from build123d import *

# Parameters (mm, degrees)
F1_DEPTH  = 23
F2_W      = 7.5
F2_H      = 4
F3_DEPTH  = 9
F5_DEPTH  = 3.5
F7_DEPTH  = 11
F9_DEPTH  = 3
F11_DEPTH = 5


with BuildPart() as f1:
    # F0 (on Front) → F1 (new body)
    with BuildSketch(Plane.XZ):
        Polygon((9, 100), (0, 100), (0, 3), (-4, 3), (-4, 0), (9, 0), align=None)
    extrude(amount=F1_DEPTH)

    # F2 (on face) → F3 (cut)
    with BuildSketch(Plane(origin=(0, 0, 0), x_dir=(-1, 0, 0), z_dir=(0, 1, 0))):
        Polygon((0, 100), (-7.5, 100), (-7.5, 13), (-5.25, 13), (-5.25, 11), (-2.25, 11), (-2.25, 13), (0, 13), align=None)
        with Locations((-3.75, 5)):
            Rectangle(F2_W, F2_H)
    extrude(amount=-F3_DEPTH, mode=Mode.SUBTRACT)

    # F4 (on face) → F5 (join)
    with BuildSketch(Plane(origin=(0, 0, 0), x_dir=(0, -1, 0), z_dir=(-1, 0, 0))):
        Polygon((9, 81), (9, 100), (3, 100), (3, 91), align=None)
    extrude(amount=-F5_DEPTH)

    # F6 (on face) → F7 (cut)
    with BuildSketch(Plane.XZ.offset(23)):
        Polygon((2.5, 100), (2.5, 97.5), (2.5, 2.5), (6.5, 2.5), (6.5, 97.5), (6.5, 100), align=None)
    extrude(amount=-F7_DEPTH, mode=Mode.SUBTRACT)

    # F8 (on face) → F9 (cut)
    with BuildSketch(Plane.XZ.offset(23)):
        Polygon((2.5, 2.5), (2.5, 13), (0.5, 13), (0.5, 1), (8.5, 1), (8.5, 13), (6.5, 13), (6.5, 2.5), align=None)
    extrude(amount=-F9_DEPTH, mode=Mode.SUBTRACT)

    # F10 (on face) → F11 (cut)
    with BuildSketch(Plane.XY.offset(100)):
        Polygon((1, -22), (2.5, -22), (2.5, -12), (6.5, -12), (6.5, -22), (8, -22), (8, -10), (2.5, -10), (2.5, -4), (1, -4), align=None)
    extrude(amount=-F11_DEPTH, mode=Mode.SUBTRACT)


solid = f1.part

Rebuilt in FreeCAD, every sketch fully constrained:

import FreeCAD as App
import Part
import Sketcher

doc = App.newDocument("Part")
body = doc.addObject("PartDesign::Body", "Body")

# Sketch on XZ plane
sketch1 = body.newObject("Sketcher::SketchObject", "Sketch")
sketch1.AttachmentSupport = (doc.getObject("XZ_Plane"), [""])
sketch1.MapMode = "FlatFace"
sketch1.addGeometry(Part.LineSegment(App.Vector(9, 100, 0), App.Vector(0, 100, 0)), False)
sketch1.addGeometry(Part.LineSegment(App.Vector(0, 100, 0), App.Vector(0, 3, 0)), False)
sketch1.addGeometry(Part.LineSegment(App.Vector(0, 3, 0), App.Vector(-4, 3, 0)), False)
sketch1.addGeometry(Part.LineSegment(App.Vector(-4, 3, 0), App.Vector(-4, 0, 0)), False)
sketch1.addGeometry(Part.LineSegment(App.Vector(-4, 0, 0), App.Vector(9, 0, 0)), False)
sketch1.addGeometry(Part.LineSegment(App.Vector(9, 0, 0), App.Vector(9, 100, 0)), False)
sketch1.addConstraint(Sketcher.Constraint("Coincident", 0, 2, 1, 1))
sketch1.addConstraint(Sketcher.Constraint("Coincident", 1, 2, 2, 1))
sketch1.addConstraint(Sketcher.Constraint("Coincident", 2, 2, 3, 1))
sketch1.addConstraint(Sketcher.Constraint("Coincident", 3, 2, 4, 1))
sketch1.addConstraint(Sketcher.Constraint("Coincident", 4, 2, 5, 1))
sketch1.addConstraint(Sketcher.Constraint("Coincident", 5, 2, 0, 1))
sketch1.addConstraint(Sketcher.Constraint("Horizontal", 0))
sketch1.addConstraint(Sketcher.Constraint("Vertical", 1))
sketch1.addConstraint(Sketcher.Constraint("Horizontal", 2))
sketch1.addConstraint(Sketcher.Constraint("Vertical", 3))
sketch1.addConstraint(Sketcher.Constraint("Horizontal", 4))
sketch1.addConstraint(Sketcher.Constraint("Vertical", 5))
sketch1.addConstraint(Sketcher.Constraint("PointOnObject", 0, 2, -2))
sketch1.addConstraint(Sketcher.Constraint("PointOnObject", 3, 2, -1))
sketch1.addConstraint(Sketcher.Constraint("DistanceX", 0, 2, 0, 1, 9.0))
sketch1.addConstraint(Sketcher.Constraint("DistanceX", 2, 2, 2, 1, 4.0))
sketch1.addConstraint(Sketcher.Constraint("DistanceY", 1, 2, 1, 1, 97.0))
sketch1.addConstraint(Sketcher.Constraint("DistanceY", 3, 2, 3, 1, 3.0))
pad1 = body.newObject("PartDesign::Pad", "Pad")
pad1.Profile = sketch1
pad1.Length = 23

# Sketch on XZ plane
sketch2 = body.newObject("Sketcher::SketchObject", "Sketch001")
sketch2.AttachmentSupport = (doc.getObject("XZ_Plane"), [""])
sketch2.MapMode = "FlatFace"
sketch2.addGeometry(Part.LineSegment(App.Vector(0, 100, 0), App.Vector(7.5, 100, 0)), False)
sketch2.addGeometry(Part.LineSegment(App.Vector(7.5, 100, 0), App.Vector(7.5, 13, 0)), False)
sketch2.addGeometry(Part.LineSegment(App.Vector(7.5, 13, 0), App.Vector(5.25, 13, 0)), False)
sketch2.addGeometry(Part.LineSegment(App.Vector(5.25, 13, 0), App.Vector(5.25, 11, 0)), False)
sketch2.addGeometry(Part.LineSegment(App.Vector(5.25, 11, 0), App.Vector(2.25, 11, 0)), False)
sketch2.addGeometry(Part.LineSegment(App.Vector(2.25, 11, 0), App.Vector(2.25, 13, 0)), False)
sketch2.addGeometry(Part.LineSegment(App.Vector(2.25, 13, 0), App.Vector(0, 13, 0)), False)
sketch2.addGeometry(Part.LineSegment(App.Vector(0, 13, 0), App.Vector(0, 100, 0)), False)
sketch2.addGeometry(Part.LineSegment(App.Vector(7.5, 7, 0), App.Vector(7.5, 3, 0)), False)
sketch2.addGeometry(Part.LineSegment(App.Vector(7.5, 3, 0), App.Vector(0, 3, 0)), False)
sketch2.addGeometry(Part.LineSegment(App.Vector(0, 3, 0), App.Vector(0, 7, 0)), False)
sketch2.addGeometry(Part.LineSegment(App.Vector(0, 7, 0), App.Vector(7.5, 7, 0)), False)
sketch2.addConstraint(Sketcher.Constraint("Coincident", 0, 2, 1, 1))
sketch2.addConstraint(Sketcher.Constraint("Coincident", 1, 2, 2, 1))
sketch2.addConstraint(Sketcher.Constraint("Coincident", 2, 2, 3, 1))
sketch2.addConstraint(Sketcher.Constraint("Coincident", 3, 2, 4, 1))
sketch2.addConstraint(Sketcher.Constraint("Coincident", 4, 2, 5, 1))
sketch2.addConstraint(Sketcher.Constraint("Coincident", 5, 2, 6, 1))
sketch2.addConstraint(Sketcher.Constraint("Coincident", 6, 2, 7, 1))
sketch2.addConstraint(Sketcher.Constraint("Coincident", 7, 2, 0, 1))
sketch2.addConstraint(Sketcher.Constraint("Coincident", 8, 2, 9, 1))
sketch2.addConstraint(Sketcher.Constraint("Coincident", 9, 2, 10, 1))
sketch2.addConstraint(Sketcher.Constraint("Coincident", 10, 2, 11, 1))
sketch2.addConstraint(Sketcher.Constraint("Coincident", 11, 2, 8, 1))
sketch2.addConstraint(Sketcher.Constraint("Horizontal", 0))
sketch2.addConstraint(Sketcher.Constraint("Vertical", 1))
sketch2.addConstraint(Sketcher.Constraint("Horizontal", 2))
sketch2.addConstraint(Sketcher.Constraint("Vertical", 3))
sketch2.addConstraint(Sketcher.Constraint("Horizontal", 4))
sketch2.addConstraint(Sketcher.Constraint("Vertical", 5))
sketch2.addConstraint(Sketcher.Constraint("Horizontal", 6))
sketch2.addConstraint(Sketcher.Constraint("Vertical", 7))
sketch2.addConstraint(Sketcher.Constraint("Vertical", 8))
sketch2.addConstraint(Sketcher.Constraint("Horizontal", 9))
sketch2.addConstraint(Sketcher.Constraint("Vertical", 10))
sketch2.addConstraint(Sketcher.Constraint("Horizontal", 11))
sketch2.addConstraint(Sketcher.Constraint("PointOnObject", 6, 2, -2))
sketch2.addConstraint(Sketcher.Constraint("PointOnObject", 9, 2, -2))
sketch2.addConstraint(Sketcher.Constraint("Horizontal", 2, 2, 5, 2))
sketch2.addConstraint(Sketcher.Constraint("Vertical", 1, 2, 8, 2))
sketch2.addConstraint(Sketcher.Constraint("Equal", 2, 6))
sketch2.addConstraint(Sketcher.Constraint("DistanceX", 4, 2, 4, 1, 3.0))
sketch2.addConstraint(Sketcher.Constraint("DistanceY", 1, 2, 1, 1, 87.0))
sketch2.addConstraint(Sketcher.Constraint("DistanceY", 3, 2, 3, 1, 2.0))
sketch2.addConstraint(Sketcher.Constraint("DistanceY", 8, 2, 8, 1, 4.0))
sketch2.addConstraint(Sketcher.Constraint("DistanceX", 0, 1, 0, 2, 7.5))
sketch2.addConstraint(Sketcher.Constraint("DistanceY", -1, 1, 0, 2, 100.0))
sketch2.addConstraint(Sketcher.Constraint("DistanceY", -1, 1, 8, 2, 3.0))
pocket1 = body.newObject("PartDesign::Pocket", "Pocket")
pocket1.Profile = sketch2
pocket1.Length = 9
pocket1.Reversed = True

# Sketch on YZ plane
sketch3 = body.newObject("Sketcher::SketchObject", "Sketch002")
sketch3.AttachmentSupport = (doc.getObject("YZ_Plane"), [""])
sketch3.MapMode = "FlatFace"
sketch3.addGeometry(Part.LineSegment(App.Vector(-9, 81, 0), App.Vector(-9, 100, 0)), False)
sketch3.addGeometry(Part.LineSegment(App.Vector(-9, 100, 0), App.Vector(-3, 100, 0)), False)
sketch3.addGeometry(Part.LineSegment(App.Vector(-3, 100, 0), App.Vector(-3, 91, 0)), False)
sketch3.addGeometry(Part.LineSegment(App.Vector(-3, 91, 0), App.Vector(-9, 81, 0)), False)
sketch3.addConstraint(Sketcher.Constraint("Coincident", 0, 2, 1, 1))
sketch3.addConstraint(Sketcher.Constraint("Coincident", 1, 2, 2, 1))
sketch3.addConstraint(Sketcher.Constraint("Coincident", 2, 2, 3, 1))
sketch3.addConstraint(Sketcher.Constraint("Coincident", 3, 2, 0, 1))
sketch3.addConstraint(Sketcher.Constraint("Vertical", 0))
sketch3.addConstraint(Sketcher.Constraint("Horizontal", 1))
sketch3.addConstraint(Sketcher.Constraint("Vertical", 2))
sketch3.addConstraint(Sketcher.Constraint("DistanceX", 1, 1, 1, 2, 6.0))
sketch3.addConstraint(Sketcher.Constraint("DistanceY", 0, 1, 0, 2, 19.0))
sketch3.addConstraint(Sketcher.Constraint("DistanceY", 2, 2, 2, 1, 9.0))
sketch3.addConstraint(Sketcher.Constraint("DistanceX", 0, 2, -1, 1, 9.0))
sketch3.addConstraint(Sketcher.Constraint("DistanceY", -1, 1, 0, 2, 100.0))
pad2 = body.newObject("PartDesign::Pad", "Pad001")
pad2.Profile = sketch3
pad2.Length = 3.5

# Sketch on XZ plane
sketch4 = body.newObject("Sketcher::SketchObject", "Sketch003")
sketch4.AttachmentSupport = (doc.getObject("XZ_Plane"), [""])
sketch4.MapMode = "FlatFace"
sketch4.AttachmentOffset = App.Placement(App.Vector(0, 0, 23), App.Rotation())
sketch4.addGeometry(Part.LineSegment(App.Vector(2.5, 100, 0), App.Vector(2.5, 2.5, 0)), False)
sketch4.addGeometry(Part.LineSegment(App.Vector(2.5, 2.5, 0), App.Vector(6.5, 2.5, 0)), False)
sketch4.addGeometry(Part.LineSegment(App.Vector(6.5, 2.5, 0), App.Vector(6.5, 100, 0)), False)
sketch4.addGeometry(Part.LineSegment(App.Vector(6.5, 100, 0), App.Vector(2.5, 100, 0)), False)
sketch4.addConstraint(Sketcher.Constraint("Coincident", 0, 2, 1, 1))
sketch4.addConstraint(Sketcher.Constraint("Coincident", 1, 2, 2, 1))
sketch4.addConstraint(Sketcher.Constraint("Coincident", 2, 2, 3, 1))
sketch4.addConstraint(Sketcher.Constraint("Coincident", 3, 2, 0, 1))
sketch4.addConstraint(Sketcher.Constraint("Vertical", 0))
sketch4.addConstraint(Sketcher.Constraint("Horizontal", 1))
sketch4.addConstraint(Sketcher.Constraint("Vertical", 2))
sketch4.addConstraint(Sketcher.Constraint("Horizontal", 3))
sketch4.addConstraint(Sketcher.Constraint("DistanceX", 1, 1, 1, 2, 4.0))
sketch4.addConstraint(Sketcher.Constraint("DistanceY", 0, 2, 0, 1, 97.5))
sketch4.addConstraint(Sketcher.Constraint("DistanceY", -1, 1, 2, 2, 100.0))
sketch4.addConstraint(Sketcher.Constraint("DistanceX", -1, 1, 0, 2, 2.5))
pocket2 = body.newObject("PartDesign::Pocket", "Pocket001")
pocket2.Profile = sketch4
pocket2.Length = 11

# Sketch on XZ plane
sketch5 = body.newObject("Sketcher::SketchObject", "Sketch004")
sketch5.AttachmentSupport = (doc.getObject("XZ_Plane"), [""])
sketch5.MapMode = "FlatFace"
sketch5.AttachmentOffset = App.Placement(App.Vector(0, 0, 23), App.Rotation())
sketch5.addGeometry(Part.LineSegment(App.Vector(2.5, 2.5, 0), App.Vector(2.5, 13, 0)), False)
sketch5.addGeometry(Part.LineSegment(App.Vector(2.5, 13, 0), App.Vector(0.5, 13, 0)), False)
sketch5.addGeometry(Part.LineSegment(App.Vector(0.5, 13, 0), App.Vector(0.5, 1, 0)), False)
sketch5.addGeometry(Part.LineSegment(App.Vector(0.5, 1, 0), App.Vector(8.5, 1, 0)), False)
sketch5.addGeometry(Part.LineSegment(App.Vector(8.5, 1, 0), App.Vector(8.5, 13, 0)), False)
sketch5.addGeometry(Part.LineSegment(App.Vector(8.5, 13, 0), App.Vector(6.5, 13, 0)), False)
sketch5.addGeometry(Part.LineSegment(App.Vector(6.5, 13, 0), App.Vector(6.5, 2.5, 0)), False)
sketch5.addGeometry(Part.LineSegment(App.Vector(6.5, 2.5, 0), App.Vector(2.5, 2.5, 0)), False)
sketch5.addConstraint(Sketcher.Constraint("Coincident", 0, 2, 1, 1))
sketch5.addConstraint(Sketcher.Constraint("Coincident", 1, 2, 2, 1))
sketch5.addConstraint(Sketcher.Constraint("Coincident", 2, 2, 3, 1))
sketch5.addConstraint(Sketcher.Constraint("Coincident", 3, 2, 4, 1))
sketch5.addConstraint(Sketcher.Constraint("Coincident", 4, 2, 5, 1))
sketch5.addConstraint(Sketcher.Constraint("Coincident", 5, 2, 6, 1))
sketch5.addConstraint(Sketcher.Constraint("Coincident", 6, 2, 7, 1))
sketch5.addConstraint(Sketcher.Constraint("Coincident", 7, 2, 0, 1))
sketch5.addConstraint(Sketcher.Constraint("Vertical", 0))
sketch5.addConstraint(Sketcher.Constraint("Horizontal", 1))
sketch5.addConstraint(Sketcher.Constraint("Vertical", 2))
sketch5.addConstraint(Sketcher.Constraint("Horizontal", 3))
sketch5.addConstraint(Sketcher.Constraint("Vertical", 4))
sketch5.addConstraint(Sketcher.Constraint("Horizontal", 5))
sketch5.addConstraint(Sketcher.Constraint("Vertical", 6))
sketch5.addConstraint(Sketcher.Constraint("Horizontal", 7))
sketch5.addConstraint(Sketcher.Constraint("Horizontal", 1, 2, 4, 2))
sketch5.addConstraint(Sketcher.Constraint("Equal", 1, 5))
sketch5.addConstraint(Sketcher.Constraint("DistanceX", 1, 2, 1, 1, 2.0))
sketch5.addConstraint(Sketcher.Constraint("DistanceX", 3, 1, 3, 2, 8.0))
sketch5.addConstraint(Sketcher.Constraint("DistanceY", 2, 2, 2, 1, 12.0))
sketch5.addConstraint(Sketcher.Constraint("DistanceY", 0, 1, 0, 2, 10.5))
sketch5.addConstraint(Sketcher.Constraint("DistanceY", -1, 1, 0, 2, 13.0))
sketch5.addConstraint(Sketcher.Constraint("DistanceX", -1, 1, 0, 2, 2.5))
pocket3 = body.newObject("PartDesign::Pocket", "Pocket002")
pocket3.Profile = sketch5
pocket3.Length = 3

# Sketch on XY plane
sketch6 = body.newObject("Sketcher::SketchObject", "Sketch005")
sketch6.AttachmentSupport = (doc.getObject("XY_Plane"), [""])
sketch6.MapMode = "FlatFace"
sketch6.AttachmentOffset = App.Placement(App.Vector(0, 0, 100), App.Rotation())
sketch6.addGeometry(Part.LineSegment(App.Vector(1, -22, 0), App.Vector(2.5, -22, 0)), False)
sketch6.addGeometry(Part.LineSegment(App.Vector(2.5, -22, 0), App.Vector(2.5, -12, 0)), False)
sketch6.addGeometry(Part.LineSegment(App.Vector(2.5, -12, 0), App.Vector(6.5, -12, 0)), False)
sketch6.addGeometry(Part.LineSegment(App.Vector(6.5, -12, 0), App.Vector(6.5, -22, 0)), False)
sketch6.addGeometry(Part.LineSegment(App.Vector(6.5, -22, 0), App.Vector(8, -22, 0)), False)
sketch6.addGeometry(Part.LineSegment(App.Vector(8, -22, 0), App.Vector(8, -10, 0)), False)
sketch6.addGeometry(Part.LineSegment(App.Vector(8, -10, 0), App.Vector(2.5, -10, 0)), False)
sketch6.addGeometry(Part.LineSegment(App.Vector(2.5, -10, 0), App.Vector(2.5, -4, 0)), False)
sketch6.addGeometry(Part.LineSegment(App.Vector(2.5, -4, 0), App.Vector(1, -4, 0)), False)
sketch6.addGeometry(Part.LineSegment(App.Vector(1, -4, 0), App.Vector(1, -22, 0)), False)
sketch6.addConstraint(Sketcher.Constraint("Coincident", 0, 2, 1, 1))
sketch6.addConstraint(Sketcher.Constraint("Coincident", 1, 2, 2, 1))
sketch6.addConstraint(Sketcher.Constraint("Coincident", 2, 2, 3, 1))
sketch6.addConstraint(Sketcher.Constraint("Coincident", 3, 2, 4, 1))
sketch6.addConstraint(Sketcher.Constraint("Coincident", 4, 2, 5, 1))
sketch6.addConstraint(Sketcher.Constraint("Coincident", 5, 2, 6, 1))
sketch6.addConstraint(Sketcher.Constraint("Coincident", 6, 2, 7, 1))
sketch6.addConstraint(Sketcher.Constraint("Coincident", 7, 2, 8, 1))
sketch6.addConstraint(Sketcher.Constraint("Coincident", 8, 2, 9, 1))
sketch6.addConstraint(Sketcher.Constraint("Coincident", 9, 2, 0, 1))
sketch6.addConstraint(Sketcher.Constraint("Horizontal", 0))
sketch6.addConstraint(Sketcher.Constraint("Vertical", 1))
sketch6.addConstraint(Sketcher.Constraint("Horizontal", 2))
sketch6.addConstraint(Sketcher.Constraint("Vertical", 3))
sketch6.addConstraint(Sketcher.Constraint("Horizontal", 4))
sketch6.addConstraint(Sketcher.Constraint("Vertical", 5))
sketch6.addConstraint(Sketcher.Constraint("Horizontal", 6))
sketch6.addConstraint(Sketcher.Constraint("Vertical", 7))
sketch6.addConstraint(Sketcher.Constraint("Horizontal", 8))
sketch6.addConstraint(Sketcher.Constraint("Vertical", 9))
sketch6.addConstraint(Sketcher.Constraint("Horizontal", 0, 2, 3, 2))
sketch6.addConstraint(Sketcher.Constraint("Vertical", 1, 2, 6, 2))
sketch6.addConstraint(Sketcher.Constraint("Equal", 0, 4))
sketch6.addConstraint(Sketcher.Constraint("DistanceX", 2, 1, 2, 2, 4.0))
sketch6.addConstraint(Sketcher.Constraint("DistanceY", 1, 1, 1, 2, 10.0))
sketch6.addConstraint(Sketcher.Constraint("DistanceY", 5, 1, 5, 2, 12.0))
sketch6.addConstraint(Sketcher.Constraint("DistanceY", 7, 1, 7, 2, 6.0))
sketch6.addConstraint(Sketcher.Constraint("DistanceX", 0, 1, 0, 2, 1.5))
sketch6.addConstraint(Sketcher.Constraint("DistanceY", 0, 2, -1, 1, 22.0))
sketch6.addConstraint(Sketcher.Constraint("DistanceX", -1, 1, 4, 2, 8.0))
pocket4 = body.newObject("PartDesign::Pocket", "Pocket003")
pocket4.Profile = sketch6
pocket4.Length = 5

doc.recompute()
